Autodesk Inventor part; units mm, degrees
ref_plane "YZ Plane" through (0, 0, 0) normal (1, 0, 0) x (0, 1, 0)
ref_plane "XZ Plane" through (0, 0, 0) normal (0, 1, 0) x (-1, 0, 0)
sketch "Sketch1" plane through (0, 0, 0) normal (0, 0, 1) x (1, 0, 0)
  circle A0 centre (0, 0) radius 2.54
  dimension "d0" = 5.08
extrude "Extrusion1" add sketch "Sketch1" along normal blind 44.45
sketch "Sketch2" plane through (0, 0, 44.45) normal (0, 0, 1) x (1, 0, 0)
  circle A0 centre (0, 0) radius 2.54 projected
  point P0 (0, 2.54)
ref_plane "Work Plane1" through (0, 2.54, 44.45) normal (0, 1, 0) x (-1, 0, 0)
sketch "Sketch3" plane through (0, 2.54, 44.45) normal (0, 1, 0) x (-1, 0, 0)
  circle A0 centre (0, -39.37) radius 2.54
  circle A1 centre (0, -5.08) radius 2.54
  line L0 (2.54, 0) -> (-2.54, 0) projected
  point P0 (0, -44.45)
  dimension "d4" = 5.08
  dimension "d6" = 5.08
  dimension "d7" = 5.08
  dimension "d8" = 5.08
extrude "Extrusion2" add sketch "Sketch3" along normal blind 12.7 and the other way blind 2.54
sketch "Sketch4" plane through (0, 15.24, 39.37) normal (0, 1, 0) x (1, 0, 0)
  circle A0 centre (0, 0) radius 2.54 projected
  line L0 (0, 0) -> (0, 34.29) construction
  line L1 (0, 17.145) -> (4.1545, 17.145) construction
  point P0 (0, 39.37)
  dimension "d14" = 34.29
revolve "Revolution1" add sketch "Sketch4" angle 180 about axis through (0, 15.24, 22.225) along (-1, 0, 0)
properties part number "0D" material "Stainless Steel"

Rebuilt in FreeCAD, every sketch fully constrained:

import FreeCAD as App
import Part
import Sketcher

V = App.Vector
Q = App.Units.Quantity

doc = App.newDocument("Part")
body = doc.addObject("PartDesign::Body", "Body")

# Sketch on XY plane
sketch1 = body.newObject("Sketcher::SketchObject", "Sketch")
sketch1.AttachmentSupport = (doc.getObject("XY_Plane"), [""])
sketch1.MapMode = "FlatFace"
sketch1.addGeometry(Part.Circle(V(0, 0, 0), V(0, 0, 1), 2.5), False)
sketch1.addConstraint(Sketcher.Constraint("Coincident", 0, 3, -1, 1))
sketch1.addConstraint(Sketcher.Constraint("Diameter", 0, Q("0.2 in")))
pad1 = body.newObject("PartDesign::Pad", "Pad")
pad1.Profile = sketch1
pad1.Length = Q("1.75 in")

# Sketch on XZ plane
sketch2 = body.newObject("Sketcher::SketchObject", "Sketch001")
sketch2.AttachmentSupport = (doc.getObject("XZ_Plane"), [""])
sketch2.MapMode = "FlatFace"
sketch2.AttachmentOffset = App.Placement(V(0, 0, -0.1 * 25.4), App.Rotation())
sketch2.addGeometry(Part.Circle(V(0, 5.1, 0), V(0, 0, 1), 2.5), False)
sketch2.addGeometry(Part.Circle(V(0, 39.4, 0), V(0, 0, 1), 2.5), False)
sketch2.addConstraint(Sketcher.Constraint("Equal", 0, 1))
sketch2.addConstraint(Sketcher.Constraint("PointOnObject", 0, 3, -2))
sketch2.addConstraint(Sketcher.Constraint("PointOnObject", 1, 3, -2))
sketch2.addConstraint(Sketcher.Constraint("Diameter", 0, Q("0.2 in")))
sketch2.addConstraint(Sketcher.Constraint("DistanceY", -1, 1, 0, 3, Q("0.2 in")))
sketch2.addConstraint(Sketcher.Constraint("DistanceY", -1, 1, 1, 3, Q("1.55 in")))
pad2 = body.newObject("PartDesign::Pad", "Pad001")
pad2.Profile = sketch2
pad2.Type = "TwoLengths"
pad2.Length = Q("0.5 in")
pad2.Length2 = Q("0.1 in")
pad2.Reversed = True

# Sketch on XZ plane
sketch3 = body.newObject("Sketcher::SketchObject", "Sketch002")
sketch3.AttachmentSupport = (doc.getObject("XZ_Plane"), [""])
sketch3.MapMode = "FlatFace"
sketch3.AttachmentOffset = App.Placement(V(0, 0, -0.6 * 25.4), App.Rotation())
sketch3.addGeometry(Part.Circle(V(0, 39.4, 0), V(0, 0, 1), 2.5), False)
sketch3.addGeometry(Part.LineSegment(V(0, 22.2, 0), V(-10, 22.2, 0)), True)  # axis
sketch3.addConstraint(Sketcher.Constraint("Horizontal", 1))
sketch3.addConstraint(Sketcher.Constraint("PointOnObject", 0, 3, -2))
sketch3.addConstraint(Sketcher.Constraint("PointOnObject", 1, 1, -2))
sketch3.addConstraint(Sketcher.Constraint("Diameter", 0, Q("0.2 in")))
sketch3.addConstraint(Sketcher.Constraint("DistanceY", -1, 1, 0, 3, Q("1.55 in")))
sketch3.addConstraint(Sketcher.Constraint("DistanceX", 1, 2, 1, 1, Q("0.3937 in")))
sketch3.addConstraint(Sketcher.Constraint("DistanceY", -1, 1, 1, 1, Q("0.875 in")))
revolution = body.newObject("PartDesign::Revolution", "Revolution")
revolution.Profile = sketch3
revolution.ReferenceAxis = (sketch3, ["Axis0"])
revolution.Angle = 180

doc.recompute()
